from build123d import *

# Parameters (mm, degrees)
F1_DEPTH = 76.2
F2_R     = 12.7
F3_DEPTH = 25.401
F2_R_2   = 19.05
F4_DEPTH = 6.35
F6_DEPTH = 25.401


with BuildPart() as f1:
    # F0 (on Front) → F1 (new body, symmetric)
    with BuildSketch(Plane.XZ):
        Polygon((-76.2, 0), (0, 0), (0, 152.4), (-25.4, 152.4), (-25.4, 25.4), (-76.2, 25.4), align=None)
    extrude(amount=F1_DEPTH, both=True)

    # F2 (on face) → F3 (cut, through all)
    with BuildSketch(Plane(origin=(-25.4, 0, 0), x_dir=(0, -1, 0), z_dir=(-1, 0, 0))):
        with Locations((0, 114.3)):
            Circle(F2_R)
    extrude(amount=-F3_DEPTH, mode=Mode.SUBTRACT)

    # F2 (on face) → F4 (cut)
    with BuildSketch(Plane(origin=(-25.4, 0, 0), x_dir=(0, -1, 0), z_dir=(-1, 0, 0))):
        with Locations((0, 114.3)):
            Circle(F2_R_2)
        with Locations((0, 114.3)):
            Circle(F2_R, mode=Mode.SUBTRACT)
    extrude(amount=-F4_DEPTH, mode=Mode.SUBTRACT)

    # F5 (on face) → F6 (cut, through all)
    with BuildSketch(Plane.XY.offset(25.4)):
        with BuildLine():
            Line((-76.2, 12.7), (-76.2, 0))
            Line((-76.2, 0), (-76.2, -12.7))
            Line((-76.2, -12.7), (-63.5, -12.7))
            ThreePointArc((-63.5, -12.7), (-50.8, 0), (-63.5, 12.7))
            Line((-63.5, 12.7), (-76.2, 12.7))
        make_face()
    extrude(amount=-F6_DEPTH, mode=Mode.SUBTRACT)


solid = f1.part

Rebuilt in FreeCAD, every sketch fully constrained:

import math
import FreeCAD as App
import Part
import Sketcher
from FreeCAD import Vector
Q = App.Units.Quantity


def add_polygon(sketch, points):
    """Adds a closed chain of lines whose ends are joined by coincident constraints."""
    first, n = sketch.GeometryCount, len(points)
    for a, b in zip(points, points[1:] + points[:1]):
        sketch.addGeometry(Part.LineSegment(App.Vector(*a, 0), App.Vector(*b, 0)), False)
    for i in range(n):
        sketch.addConstraint(Sketcher.Constraint("Coincident", first + i, 2, first + (i + 1) % n, 1))

doc = App.newDocument("Part")
body = doc.addObject("PartDesign::Body", "Body")

# Sketch on XZ plane
sketch1 = body.newObject("Sketcher::SketchObject", "Sketch")
sketch1.AttachmentSupport = (doc.getObject("XZ_Plane"), [""])
sketch1.MapMode = "FlatFace"
add_polygon(sketch1, [(-76, 0), (0, 0), (0, 152), (-25, 152), (-25, 25), (-76, 25)])  # lines 0-5
sketch1.addConstraint(Sketcher.Constraint("Horizontal", 0))
sketch1.addConstraint(Sketcher.Constraint("Vertical", 1))
sketch1.addConstraint(Sketcher.Constraint("Horizontal", 2))
sketch1.addConstraint(Sketcher.Constraint("Vertical", 3))
sketch1.addConstraint(Sketcher.Constraint("Horizontal", 4))
sketch1.addConstraint(Sketcher.Constraint("Vertical", 5))
sketch1.addConstraint(Sketcher.Constraint("Coincident", 0, 2, -1, 1))
sketch1.addConstraint(Sketcher.Constraint("Equal", 2, 5))
sketch1.addConstraint(Sketcher.Constraint("DistanceX", 0, 1, 0, 2, Q("3 in")))
sketch1.addConstraint(Sketcher.Constraint("DistanceX", 2, 2, 2, 1, Q("1 in")))
sketch1.addConstraint(Sketcher.Constraint("DistanceY", 1, 1, 1, 2, Q("6 in")))
pad1 = body.newObject("PartDesign::Pad", "Pad")
pad1.Profile = sketch1
pad1.Length = Q("6 in")
pad1.Midplane = True

# Sketch on YZ plane
sketch2 = body.newObject("Sketcher::SketchObject", "Sketch001")
sketch2.AttachmentSupport = (doc.getObject("YZ_Plane"), [""])
sketch2.MapMode = "FlatFace"
sketch2.AttachmentOffset = App.Placement(Vector(0, 0, -1 * 25.4), App.Rotation())
sketch2.addGeometry(Part.Circle(Vector(0, 114, 0), Vector(0, 0, 1), 13), False)
sketch2.addConstraint(Sketcher.Constraint("PointOnObject", 0, 3, -2))
sketch2.addConstraint(Sketcher.Constraint("Diameter", 0, Q("1 in")))
sketch2.addConstraint(Sketcher.Constraint("DistanceY", -1, 1, 0, 3, Q("4.5 in")))
pocket1 = body.newObject("PartDesign::Pocket", "Pocket")
pocket1.Profile = sketch2
pocket1.Type = "ThroughAll"
pocket1.Reversed = True

# Sketch on YZ plane
sketch3 = body.newObject("Sketcher::SketchObject", "Sketch002")
sketch3.AttachmentSupport = (doc.getObject("YZ_Plane"), [""])
sketch3.MapMode = "FlatFace"
sketch3.AttachmentOffset = App.Placement(Vector(0, 0, -1 * 25.4), App.Rotation())
sketch3.addGeometry(Part.Circle(Vector(0, 114, 0), Vector(0, 0, 1), 19), False)
sketch3.addGeometry(Part.Circle(Vector(0, 114, 0), Vector(0, 0, 1), 13), False)
sketch3.addConstraint(Sketcher.Constraint("Coincident", 1, 3, 0, 3))
sketch3.addConstraint(Sketcher.Constraint("PointOnObject", 0, 3, -2))
sketch3.addConstraint(Sketcher.Constraint("Diameter", 1, Q("1 in")))
sketch3.addConstraint(Sketcher.Constraint("Diameter", 0, Q("1.5 in")))
sketch3.addConstraint(Sketcher.Constraint("DistanceY", -1, 1, 0, 3, Q("4.5 in")))
pocket2 = body.newObject("PartDesign::Pocket", "Pocket001")
pocket2.Profile = sketch3
pocket2.Length = Q("0.25 in")
pocket2.Reversed = True

# Sketch on XY plane
sketch4 = body.newObject("Sketcher::SketchObject", "Sketch003")
sketch4.AttachmentSupport = (doc.getObject("XY_Plane"), [""])
sketch4.MapMode = "FlatFace"
sketch4.AttachmentOffset = App.Placement(Vector(0, 0, 1 * 25.4), App.Rotation())
sketch4.addGeometry(Part.LineSegment(Vector(-76, 13, 0), Vector(-76, -13, 0)), False)
sketch4.addGeometry(Part.LineSegment(Vector(-76, -13, 0), Vector(-64, -13, 0)), False)
sketch4.addGeometry(Part.ArcOfCircle(Part.Circle(Vector(-64, 0, 0), Vector(0, 0, 1), 13), math.radians(-90), math.radians(90)), False)
sketch4.addGeometry(Part.LineSegment(Vector(-64, 13, 0), Vector(-76, 13, 0)), False)
sketch4.addConstraint(Sketcher.Constraint("Coincident", 0, 2, 1, 1))
sketch4.addConstraint(Sketcher.Constraint("Tangent", 1, 2, 2, 1))
sketch4.addConstraint(Sketcher.Constraint("Tangent", 2, 2, 3, 1))
sketch4.addConstraint(Sketcher.Constraint("Coincident", 3, 2, 0, 1))
sketch4.addConstraint(Sketcher.Constraint("Vertical", 0))
sketch4.addConstraint(Sketcher.Constraint("Horizontal", 1))
sketch4.addConstraint(Sketcher.Constraint("Horizontal", 3))
sketch4.addConstraint(Sketcher.Constraint("PointOnObject", 2, 3, -1))
sketch4.addConstraint(Sketcher.Constraint("Radius", 2, Q("0.5 in")))
sketch4.addConstraint(Sketcher.Constraint("DistanceX", 1, 1, 1, 2, Q("0.5 in")))
sketch4.addConstraint(Sketcher.Constraint("DistanceX", 0, 2, -1, 1, Q("3 in")))
pocket3 = body.newObject("PartDesign::Pocket", "Pocket002")
pocket3.Profile = sketch4
pocket3.Type = "ThroughAll"

doc.recompute()
